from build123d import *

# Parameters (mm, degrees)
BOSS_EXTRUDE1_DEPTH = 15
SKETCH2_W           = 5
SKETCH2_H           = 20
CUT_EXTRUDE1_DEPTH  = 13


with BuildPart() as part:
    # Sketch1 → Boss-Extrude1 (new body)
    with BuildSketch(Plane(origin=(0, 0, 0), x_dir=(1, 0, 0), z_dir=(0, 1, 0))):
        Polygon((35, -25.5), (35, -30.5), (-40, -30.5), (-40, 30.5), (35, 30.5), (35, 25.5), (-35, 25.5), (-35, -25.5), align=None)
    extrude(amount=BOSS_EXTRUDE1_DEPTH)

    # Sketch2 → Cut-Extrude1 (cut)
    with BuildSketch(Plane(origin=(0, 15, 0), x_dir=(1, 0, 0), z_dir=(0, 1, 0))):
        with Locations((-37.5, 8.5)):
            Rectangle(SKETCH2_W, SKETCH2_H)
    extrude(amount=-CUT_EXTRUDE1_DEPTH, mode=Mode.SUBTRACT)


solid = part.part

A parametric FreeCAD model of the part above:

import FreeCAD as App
import Part
import Sketcher
Q = App.Units.Quantity

doc = App.newDocument("Part")
body = doc.addObject("PartDesign::Body", "Body")

# Sketch on XZ plane
sketch1 = doc.addObject("Sketcher::SketchObject", "Sketch")
body.addObject(sketch1)
sketch1.AttachmentSupport = (doc.XZ_Plane, [""])
sketch1.MapMode = "FlatFace"
sketch1.addGeometry([
    Part.LineSegment(App.Vector(35, 30.5, 0), App.Vector(35, 25.5, 0)),  # 0
    Part.LineSegment(App.Vector(35, 25.5, 0), App.Vector(-35, 25.5, 0)),  # 1
    Part.LineSegment(App.Vector(-35, 25.5, 0), App.Vector(-35, -25.5, 0)),  # 2
    Part.LineSegment(App.Vector(-35, -25.5, 0), App.Vector(35, -25.5, 0)),  # 3
    Part.LineSegment(App.Vector(35, -25.5, 0), App.Vector(35, -30.5, 0)),  # 4
    Part.LineSegment(App.Vector(35, -30.5, 0), App.Vector(-40, -30.5, 0)),  # 5
    Part.LineSegment(App.Vector(-40, -30.5, 0), App.Vector(-40, 30.5, 0)),  # 6
    Part.LineSegment(App.Vector(-40, 30.5, 0), App.Vector(35, 30.5, 0)),  # 7
], False)
sketch1.addConstraint([
    Sketcher.Constraint("Coincident", 0, 2, 1, 1),
    Sketcher.Constraint("Coincident", 1, 2, 2, 1),
    Sketcher.Constraint("Coincident", 2, 2, 3, 1),
    Sketcher.Constraint("Coincident", 3, 2, 4, 1),
    Sketcher.Constraint("Coincident", 4, 2, 5, 1),
    Sketcher.Constraint("Coincident", 5, 2, 6, 1),
    Sketcher.Constraint("Coincident", 6, 2, 7, 1),
    Sketcher.Constraint("Coincident", 7, 2, 0, 1),
    Sketcher.Constraint("Vertical", 0),
    Sketcher.Constraint("Horizontal", 1),
    Sketcher.Constraint("Vertical", 2),
    Sketcher.Constraint("Horizontal", 3),
    Sketcher.Constraint("Vertical", 4),
    Sketcher.Constraint("Horizontal", 5),
    Sketcher.Constraint("Vertical", 6),
    Sketcher.Constraint("Horizontal", 7),
    Sketcher.Constraint("Symmetric", 0, 2, 2, 2, -1, 1),
    Sketcher.Constraint("Symmetric", 4, 2, 7, 2, -1),
    Sketcher.Constraint("DistanceX", 1, 2, 1, 1, Q("70 mm")),
    Sketcher.Constraint("DistanceX", 5, 2, 5, 1, Q("75 mm")),
    Sketcher.Constraint("DistanceY", 0, 2, 0, 1, Q("5 mm")),
    Sketcher.Constraint("DistanceY", 2, 2, 2, 1, Q("51 mm")),
])
pad1 = doc.addObject("PartDesign::Pad", "Pad")
body.addObject(pad1)
pad1.Profile = sketch1
pad1.Length = 15
pad1.Reversed = True

# Sketch on XZ plane
sketch2 = doc.addObject("Sketcher::SketchObject", "Sketch001")
body.addObject(sketch2)
sketch2.AttachmentSupport = (doc.XZ_Plane, [""])
sketch2.MapMode = "FlatFace"
sketch2.AttachmentOffset = App.Placement(App.Vector(0, 0, -15), App.Rotation())
sketch2.addGeometry([
    Part.LineSegment(App.Vector(-40, -18.5, 0), App.Vector(-40, 1.5, 0)),
    Part.LineSegment(App.Vector(-40, 1.5, 0), App.Vector(-35, 1.5, 0)),
    Part.LineSegment(App.Vector(-35, 1.5, 0), App.Vector(-35, -18.5, 0)),
    Part.LineSegment(App.Vector(-35, -18.5, 0), App.Vector(-40, -18.5, 0)),
], False)
sketch2.addConstraint([
    Sketcher.Constraint("Coincident", 0, 2, 1, 1),
    Sketcher.Constraint("Coincident", 1, 2, 2, 1),
    Sketcher.Constraint("Coincident", 2, 2, 3, 1),
    Sketcher.Constraint("Coincident", 3, 2, 0, 1),
    Sketcher.Constraint("Vertical", 0),
    Sketcher.Constraint("Horizontal", 1),
    Sketcher.Constraint("Vertical", 2),
    Sketcher.Constraint("Horizontal", 3),
    Sketcher.Constraint("DistanceX", 1, 1, 1, 2, Q("5 mm")),
    Sketcher.Constraint("DistanceY", 0, 1, 0, 2, Q("20 mm")),
    Sketcher.Constraint("DistanceX", 0, 2, -1, 1, Q("40 mm")),
    Sketcher.Constraint("DistanceY", -1, 1, 0, 2, Q("1.5 mm")),
])
pocket1 = doc.addObject("PartDesign::Pocket", "Pocket")
body.addObject(pocket1)
pocket1.Profile = sketch2
pocket1.Length = 13
pocket1.Reversed = True

doc.recompute()
